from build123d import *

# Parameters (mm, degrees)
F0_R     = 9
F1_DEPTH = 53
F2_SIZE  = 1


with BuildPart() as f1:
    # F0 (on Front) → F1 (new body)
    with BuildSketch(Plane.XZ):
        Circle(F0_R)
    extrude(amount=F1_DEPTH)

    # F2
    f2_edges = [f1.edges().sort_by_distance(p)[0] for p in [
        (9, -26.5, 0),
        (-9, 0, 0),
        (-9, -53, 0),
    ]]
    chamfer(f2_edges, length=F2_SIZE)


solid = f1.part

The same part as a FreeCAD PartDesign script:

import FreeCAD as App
import Part
import Sketcher

doc = App.newDocument("Part")
body = doc.addObject("PartDesign::Body", "Body")

sketch1 = body.newObject("Sketcher::SketchObject", "Sketch")
sketch1.AttachmentSupport = (doc.getObject("XZ_Plane"), [""])
sketch1.MapMode = "FlatFace"
sketch1.addGeometry(Part.Circle(App.Vector(0, 0, 0), App.Vector(0, 0, 1), 9), False)
sketch1.addConstraint([
    Sketcher.Constraint("Coincident", 0, 3, -1, 1),
    Sketcher.Constraint("Diameter", 0, 18.0),
])
pad1 = body.newObject("PartDesign::Pad", "Pad")
pad1.Profile = sketch1
pad1.Length = 53
doc.recompute()

chamfer = body.newObject("PartDesign::Chamfer", "Chamfer")
chamfer.Base = (pad1, ["Edge1"])
chamfer.UseAllEdges = True
chamfer.Size = 1

doc.recompute()
